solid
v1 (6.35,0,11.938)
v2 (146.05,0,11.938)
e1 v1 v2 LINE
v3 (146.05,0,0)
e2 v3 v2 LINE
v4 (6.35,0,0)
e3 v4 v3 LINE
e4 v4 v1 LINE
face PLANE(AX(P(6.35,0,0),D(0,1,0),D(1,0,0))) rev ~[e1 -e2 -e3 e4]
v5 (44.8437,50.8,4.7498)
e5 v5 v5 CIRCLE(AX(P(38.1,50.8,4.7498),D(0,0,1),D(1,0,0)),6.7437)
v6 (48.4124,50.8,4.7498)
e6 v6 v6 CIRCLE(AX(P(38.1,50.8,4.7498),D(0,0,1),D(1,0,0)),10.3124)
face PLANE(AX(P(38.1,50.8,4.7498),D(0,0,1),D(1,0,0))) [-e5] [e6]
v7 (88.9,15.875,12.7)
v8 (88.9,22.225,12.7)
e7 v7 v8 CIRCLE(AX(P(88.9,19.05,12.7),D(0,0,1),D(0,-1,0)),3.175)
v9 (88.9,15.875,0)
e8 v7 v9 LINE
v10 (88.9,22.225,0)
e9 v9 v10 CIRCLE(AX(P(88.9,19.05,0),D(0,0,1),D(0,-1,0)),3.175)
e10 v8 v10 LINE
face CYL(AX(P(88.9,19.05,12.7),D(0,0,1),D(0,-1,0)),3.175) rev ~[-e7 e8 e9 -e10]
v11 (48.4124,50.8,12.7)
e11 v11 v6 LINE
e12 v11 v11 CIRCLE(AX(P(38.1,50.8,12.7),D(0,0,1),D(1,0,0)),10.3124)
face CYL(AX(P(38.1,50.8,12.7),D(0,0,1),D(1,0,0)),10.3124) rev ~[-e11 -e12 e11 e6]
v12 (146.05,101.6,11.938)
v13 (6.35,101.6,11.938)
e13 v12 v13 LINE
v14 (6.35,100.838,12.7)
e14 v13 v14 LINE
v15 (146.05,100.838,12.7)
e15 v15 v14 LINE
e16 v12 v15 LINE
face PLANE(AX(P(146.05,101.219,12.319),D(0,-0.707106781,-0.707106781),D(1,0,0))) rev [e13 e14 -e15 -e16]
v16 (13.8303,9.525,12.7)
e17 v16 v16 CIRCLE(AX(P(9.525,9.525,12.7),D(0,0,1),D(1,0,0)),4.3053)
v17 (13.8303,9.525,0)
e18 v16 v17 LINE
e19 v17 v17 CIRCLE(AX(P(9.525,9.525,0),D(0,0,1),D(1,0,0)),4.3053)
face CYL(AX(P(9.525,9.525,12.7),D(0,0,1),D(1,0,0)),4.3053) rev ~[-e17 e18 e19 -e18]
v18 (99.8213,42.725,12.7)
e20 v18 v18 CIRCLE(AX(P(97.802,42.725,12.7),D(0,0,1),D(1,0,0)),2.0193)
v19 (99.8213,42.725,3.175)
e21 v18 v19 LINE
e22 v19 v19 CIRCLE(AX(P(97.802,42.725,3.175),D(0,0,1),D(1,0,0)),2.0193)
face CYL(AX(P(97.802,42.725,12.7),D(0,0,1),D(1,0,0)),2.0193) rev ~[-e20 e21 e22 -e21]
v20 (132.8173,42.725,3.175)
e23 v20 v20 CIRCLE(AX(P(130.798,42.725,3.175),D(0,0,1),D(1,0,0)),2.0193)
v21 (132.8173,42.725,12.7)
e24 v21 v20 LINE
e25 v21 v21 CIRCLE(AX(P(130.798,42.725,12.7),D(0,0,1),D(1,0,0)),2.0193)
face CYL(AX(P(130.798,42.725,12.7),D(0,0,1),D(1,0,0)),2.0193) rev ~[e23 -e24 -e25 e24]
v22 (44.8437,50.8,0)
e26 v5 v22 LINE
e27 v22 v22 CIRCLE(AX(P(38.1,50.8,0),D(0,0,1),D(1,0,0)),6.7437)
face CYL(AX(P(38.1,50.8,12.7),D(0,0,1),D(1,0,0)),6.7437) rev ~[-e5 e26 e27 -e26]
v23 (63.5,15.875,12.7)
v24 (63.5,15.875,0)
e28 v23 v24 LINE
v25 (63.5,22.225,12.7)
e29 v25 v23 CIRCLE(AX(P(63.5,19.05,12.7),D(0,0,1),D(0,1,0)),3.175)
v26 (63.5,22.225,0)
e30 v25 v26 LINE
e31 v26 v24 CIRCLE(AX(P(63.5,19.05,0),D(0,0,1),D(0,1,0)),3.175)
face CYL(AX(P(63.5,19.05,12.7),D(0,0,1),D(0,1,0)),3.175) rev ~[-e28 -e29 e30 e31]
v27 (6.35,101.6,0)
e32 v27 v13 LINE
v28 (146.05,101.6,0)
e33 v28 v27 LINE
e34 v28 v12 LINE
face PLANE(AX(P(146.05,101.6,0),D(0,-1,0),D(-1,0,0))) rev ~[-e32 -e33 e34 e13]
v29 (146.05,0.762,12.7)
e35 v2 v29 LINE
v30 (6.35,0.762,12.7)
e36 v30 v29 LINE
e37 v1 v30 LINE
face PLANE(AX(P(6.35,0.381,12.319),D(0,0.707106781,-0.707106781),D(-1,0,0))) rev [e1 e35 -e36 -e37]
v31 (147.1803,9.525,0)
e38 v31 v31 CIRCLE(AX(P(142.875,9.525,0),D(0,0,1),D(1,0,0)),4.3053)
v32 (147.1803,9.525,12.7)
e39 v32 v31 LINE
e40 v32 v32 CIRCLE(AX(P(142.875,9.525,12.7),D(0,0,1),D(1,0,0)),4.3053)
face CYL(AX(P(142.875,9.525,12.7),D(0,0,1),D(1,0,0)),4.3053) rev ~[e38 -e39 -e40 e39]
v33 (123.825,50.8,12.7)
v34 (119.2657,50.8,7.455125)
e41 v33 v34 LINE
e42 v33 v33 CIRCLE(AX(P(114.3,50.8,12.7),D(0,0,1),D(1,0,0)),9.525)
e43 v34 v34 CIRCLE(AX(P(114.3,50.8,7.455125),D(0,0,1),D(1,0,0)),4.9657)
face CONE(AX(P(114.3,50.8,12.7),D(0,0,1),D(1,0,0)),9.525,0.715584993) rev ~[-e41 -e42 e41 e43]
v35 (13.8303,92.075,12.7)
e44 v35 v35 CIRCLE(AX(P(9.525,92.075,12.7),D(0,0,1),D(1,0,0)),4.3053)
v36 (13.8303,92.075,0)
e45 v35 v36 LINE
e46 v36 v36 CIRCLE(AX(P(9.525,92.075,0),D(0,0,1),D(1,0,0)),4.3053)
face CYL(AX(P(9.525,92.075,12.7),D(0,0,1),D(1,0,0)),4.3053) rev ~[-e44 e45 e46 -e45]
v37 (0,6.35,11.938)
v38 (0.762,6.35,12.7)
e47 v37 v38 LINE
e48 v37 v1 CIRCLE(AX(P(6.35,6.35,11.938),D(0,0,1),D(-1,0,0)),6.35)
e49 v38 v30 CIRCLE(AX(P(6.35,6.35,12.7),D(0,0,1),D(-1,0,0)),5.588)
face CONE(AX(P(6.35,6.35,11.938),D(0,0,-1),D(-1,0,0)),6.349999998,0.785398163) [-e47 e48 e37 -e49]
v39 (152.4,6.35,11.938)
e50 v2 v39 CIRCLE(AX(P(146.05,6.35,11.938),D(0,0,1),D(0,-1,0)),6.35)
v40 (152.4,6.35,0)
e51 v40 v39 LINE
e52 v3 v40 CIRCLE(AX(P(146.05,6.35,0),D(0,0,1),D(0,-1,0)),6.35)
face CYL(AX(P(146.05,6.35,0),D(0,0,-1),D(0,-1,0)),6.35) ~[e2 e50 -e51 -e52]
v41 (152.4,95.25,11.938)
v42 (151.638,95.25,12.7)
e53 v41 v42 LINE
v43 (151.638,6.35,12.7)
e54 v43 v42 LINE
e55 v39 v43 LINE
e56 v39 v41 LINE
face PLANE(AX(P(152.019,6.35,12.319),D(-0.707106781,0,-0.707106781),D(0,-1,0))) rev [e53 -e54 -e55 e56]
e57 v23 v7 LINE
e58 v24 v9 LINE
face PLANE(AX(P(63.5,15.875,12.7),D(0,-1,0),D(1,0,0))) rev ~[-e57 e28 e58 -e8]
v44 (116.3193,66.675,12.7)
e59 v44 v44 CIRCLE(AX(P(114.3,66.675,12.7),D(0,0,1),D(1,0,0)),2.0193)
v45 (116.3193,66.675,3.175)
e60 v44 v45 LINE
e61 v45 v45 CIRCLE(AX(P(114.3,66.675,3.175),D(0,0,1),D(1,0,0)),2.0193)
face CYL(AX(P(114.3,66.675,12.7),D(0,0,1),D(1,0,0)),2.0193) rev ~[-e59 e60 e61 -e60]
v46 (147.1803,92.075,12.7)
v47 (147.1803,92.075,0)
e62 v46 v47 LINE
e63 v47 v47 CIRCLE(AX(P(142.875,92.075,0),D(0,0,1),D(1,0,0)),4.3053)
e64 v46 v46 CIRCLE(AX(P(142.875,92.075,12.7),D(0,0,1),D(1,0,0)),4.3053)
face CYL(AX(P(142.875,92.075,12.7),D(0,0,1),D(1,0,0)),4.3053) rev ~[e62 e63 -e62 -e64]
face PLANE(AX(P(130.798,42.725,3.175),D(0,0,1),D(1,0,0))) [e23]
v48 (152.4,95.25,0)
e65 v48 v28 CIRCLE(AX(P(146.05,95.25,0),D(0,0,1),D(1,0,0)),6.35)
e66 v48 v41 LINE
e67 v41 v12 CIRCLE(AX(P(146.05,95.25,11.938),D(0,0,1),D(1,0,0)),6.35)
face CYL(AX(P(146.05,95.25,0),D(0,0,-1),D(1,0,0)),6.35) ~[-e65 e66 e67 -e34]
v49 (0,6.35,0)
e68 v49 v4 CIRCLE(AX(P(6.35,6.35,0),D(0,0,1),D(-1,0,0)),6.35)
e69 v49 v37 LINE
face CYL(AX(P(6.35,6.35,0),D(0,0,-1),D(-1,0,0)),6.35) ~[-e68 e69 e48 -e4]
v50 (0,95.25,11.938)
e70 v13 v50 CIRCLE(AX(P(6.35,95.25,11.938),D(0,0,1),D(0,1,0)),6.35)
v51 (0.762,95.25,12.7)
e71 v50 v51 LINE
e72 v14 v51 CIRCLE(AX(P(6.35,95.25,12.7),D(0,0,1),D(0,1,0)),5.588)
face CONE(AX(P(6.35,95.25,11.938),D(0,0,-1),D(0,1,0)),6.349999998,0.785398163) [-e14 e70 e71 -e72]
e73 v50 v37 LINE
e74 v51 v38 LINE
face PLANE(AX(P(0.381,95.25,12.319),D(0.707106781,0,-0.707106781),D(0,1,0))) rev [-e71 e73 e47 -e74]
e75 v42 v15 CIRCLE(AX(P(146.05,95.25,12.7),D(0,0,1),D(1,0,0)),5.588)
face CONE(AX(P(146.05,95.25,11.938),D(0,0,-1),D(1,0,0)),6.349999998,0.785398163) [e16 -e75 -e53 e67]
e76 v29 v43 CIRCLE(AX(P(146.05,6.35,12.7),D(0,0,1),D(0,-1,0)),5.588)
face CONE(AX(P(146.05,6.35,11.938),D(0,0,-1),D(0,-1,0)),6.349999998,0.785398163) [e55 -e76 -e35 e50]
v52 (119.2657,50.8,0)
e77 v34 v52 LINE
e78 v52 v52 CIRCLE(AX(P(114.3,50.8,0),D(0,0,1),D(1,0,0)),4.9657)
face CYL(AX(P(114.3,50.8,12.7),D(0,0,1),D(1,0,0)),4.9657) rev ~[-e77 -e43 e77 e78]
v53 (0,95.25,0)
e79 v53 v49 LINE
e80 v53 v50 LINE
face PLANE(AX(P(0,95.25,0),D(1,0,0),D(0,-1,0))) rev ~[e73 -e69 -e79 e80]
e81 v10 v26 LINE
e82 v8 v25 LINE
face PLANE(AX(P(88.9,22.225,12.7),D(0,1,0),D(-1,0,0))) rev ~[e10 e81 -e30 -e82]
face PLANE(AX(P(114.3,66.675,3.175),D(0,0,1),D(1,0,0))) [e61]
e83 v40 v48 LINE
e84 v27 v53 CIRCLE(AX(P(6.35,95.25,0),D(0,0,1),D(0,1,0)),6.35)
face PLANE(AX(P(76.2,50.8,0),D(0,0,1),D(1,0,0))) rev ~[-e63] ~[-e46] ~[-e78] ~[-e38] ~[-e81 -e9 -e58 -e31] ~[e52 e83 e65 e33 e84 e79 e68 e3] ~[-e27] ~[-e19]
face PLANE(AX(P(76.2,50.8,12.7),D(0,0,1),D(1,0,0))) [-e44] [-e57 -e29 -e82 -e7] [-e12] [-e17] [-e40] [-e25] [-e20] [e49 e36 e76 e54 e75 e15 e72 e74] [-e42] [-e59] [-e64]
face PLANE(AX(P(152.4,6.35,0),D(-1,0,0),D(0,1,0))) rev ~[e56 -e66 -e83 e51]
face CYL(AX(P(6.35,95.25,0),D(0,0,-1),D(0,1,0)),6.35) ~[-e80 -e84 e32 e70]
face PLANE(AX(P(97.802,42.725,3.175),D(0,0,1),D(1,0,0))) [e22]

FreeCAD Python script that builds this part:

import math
import FreeCAD as App
import Part
import Sketcher
Q = App.Units.Quantity


def edges_at(feature, points):
    """Names of the edges that pass closest to the given points."""
    edges = feature.Shape.Edges
    near = lambda p: min(range(len(edges)), key=lambda i: edges[i].distToShape(Part.Vertex(*p))[0])
    return sorted({f"Edge{near(p) + 1}" for p in points})


def faces_at(feature, points):
    """Names of the faces that lie closest to the given points."""
    faces = feature.Shape.Faces
    near = lambda p: min(range(len(faces)), key=lambda i: faces[i].distToShape(Part.Vertex(*p))[0])
    return sorted({f"Face{near(p) + 1}" for p in points})

doc = App.newDocument("Part")
params = doc.addObject("Spreadsheet::Sheet", "Params")
for row, (alias, value) in enumerate([
    ("sketch1_radius", "0.25 in"),
    ("sketch1_width", "5.5 in"),
    ("sketch1_height", "3.5 in"),
    ("pad1_length", "0.5 in"),
    ("sketch2_diameter", "0.339 in"),
    ("sketch3_width", "1 in"),
    ("sketch3_radius", "0.125 in"),
    ("sketch4_diameter", "0.812 in"),
    ("pocket3_length", "0.313 in"),
    ("sketch5_diameter", "0.531 in"),
    ("sketch6_diameter", "0.75 in"),
    ("pad2_length", "5.244875 mm"),
    ("draft_angle", "41 deg"),
    ("sketch7_diameter", "0.391 in"),
    ("sketch8_diameter", "0.159 in"),
    ("pocket6_length", "0.375 in"),
    ("chamfer_size", "0.03 in"),
], start=1):
    params.set(f"A{row}", alias)
    params.set(f"B{row}", "=" + value)
    params.setAlias(f"B{row}", alias)

body = doc.addObject("PartDesign::Body", "Body")

sketch1 = body.newObject("Sketcher::SketchObject", "Sketch")
sketch1.AttachmentSupport = (doc.getObject("XY_Plane"), [""])
sketch1.MapMode = "FlatFace"
sketch1.addGeometry([
    Part.LineSegment(App.Vector(6.35, 0, 0), App.Vector(146.05, 0, 0)),
    Part.ArcOfCircle(Part.Circle(App.Vector(146.05, 6.35, 0), App.Vector(0, 0, 1), 6.35), math.radians(-90), math.radians(0)),
    Part.LineSegment(App.Vector(152.4, 6.35, 0), App.Vector(152.4, 95.25, 0)),
    Part.ArcOfCircle(Part.Circle(App.Vector(146.05, 95.25, 0), App.Vector(0, 0, 1), 6.35), math.radians(0), math.radians(90)),
    Part.LineSegment(App.Vector(146.05, 101.6, 0), App.Vector(6.35, 101.6, 0)),
    Part.ArcOfCircle(Part.Circle(App.Vector(6.35, 95.25, 0), App.Vector(0, 0, 1), 6.35), math.radians(90), math.radians(180)),
    Part.LineSegment(App.Vector(0, 95.25, 0), App.Vector(0, 6.35, 0)),
    Part.ArcOfCircle(Part.Circle(App.Vector(6.35, 6.35, 0), App.Vector(0, 0, 1), 6.35), math.radians(180), math.radians(270)),
], False)
sketch1.addConstraint([
    Sketcher.Constraint("Tangent", 0, 2, 1, 1),
    Sketcher.Constraint("Tangent", 1, 2, 2, 1),
    Sketcher.Constraint("Tangent", 2, 2, 3, 1),
    Sketcher.Constraint("Tangent", 3, 2, 4, 1),
    Sketcher.Constraint("Tangent", 4, 2, 5, 1),
    Sketcher.Constraint("Tangent", 5, 2, 6, 1),
    Sketcher.Constraint("Tangent", 6, 2, 7, 1),
    Sketcher.Constraint("Tangent", 7, 2, 0, 1),
    Sketcher.Constraint("Horizontal", 0),
    Sketcher.Constraint("Vertical", 2),
    Sketcher.Constraint("Horizontal", 4),
    Sketcher.Constraint("Vertical", 6),
    Sketcher.Constraint("Equal", 1, 3),
    Sketcher.Constraint("Equal", 3, 5),
    Sketcher.Constraint("Equal", 5, 7),
    Sketcher.Constraint("PointOnObject", 0, 2, -1),
    Sketcher.Constraint("PointOnObject", 5, 2, -2),
    Sketcher.Constraint("Radius", 1, Q("0.25 in")),
    Sketcher.Constraint("DistanceX", 0, 1, 0, 2, Q("5.5 in")),
    Sketcher.Constraint("DistanceY", 2, 1, 2, 2, Q("3.5 in")),
])
sketch1.setExpression("Constraints[17]", "Params.sketch1_radius")
sketch1.setExpression("Constraints[18]", "Params.sketch1_width")
sketch1.setExpression("Constraints[19]", "Params.sketch1_height")
pad1 = body.newObject("PartDesign::Pad", "Pad")
pad1.Profile = sketch1
pad1.setExpression("Length", "Params.pad1_length")

sketch2 = body.newObject("Sketcher::SketchObject", "Sketch001")
sketch2.AttachmentSupport = (doc.getObject("XY_Plane"), [""])
sketch2.MapMode = "FlatFace"
sketch2.AttachmentOffset = App.Placement(App.Vector(0, 0, 0.5 * 25.4), App.Rotation())
sketch2.addGeometry([
    Part.Circle(App.Vector(9.525, 9.525, 0), App.Vector(0, 0, 1), 4.3053),
    Part.Circle(App.Vector(142.875, 9.525, 0), App.Vector(0, 0, 1), 4.3053),
    Part.Circle(App.Vector(9.525, 92.075, 0), App.Vector(0, 0, 1), 4.3053),
    Part.Circle(App.Vector(142.875, 92.075, 0), App.Vector(0, 0, 1), 4.3053),
], False)
sketch2.addConstraint([
    Sketcher.Constraint("Equal", 0, 1),
    Sketcher.Constraint("Equal", 1, 2),
    Sketcher.Constraint("Equal", 2, 3),
    Sketcher.Constraint("Horizontal", 0, 3, 1, 3),
    Sketcher.Constraint("Horizontal", 2, 3, 3, 3),
    Sketcher.Constraint("Vertical", 0, 3, 2, 3),
    Sketcher.Constraint("Vertical", 1, 3, 3, 3),
    Sketcher.Constraint("Diameter", 0, Q("0.339 in")),
    Sketcher.Constraint("DistanceX", 0, 3, 1, 3, Q("5.25 in")),
    Sketcher.Constraint("DistanceY", 0, 3, 2, 3, Q("3.25 in")),
    Sketcher.Constraint("DistanceX", -1, 1, 0, 3, Q("0.375 in")),
    Sketcher.Constraint("DistanceY", -1, 1, 0, 3, Q("0.375 in")),
])
sketch2.setExpression("Constraints[7]", "Params.sketch2_diameter")
pocket1 = body.newObject("PartDesign::Pocket", "Pocket")
pocket1.Profile = sketch2
pocket1.Type = "ThroughAll"

sketch3 = body.newObject("Sketcher::SketchObject", "Sketch002")
sketch3.AttachmentSupport = (doc.getObject("XY_Plane"), [""])
sketch3.MapMode = "FlatFace"
sketch3.AttachmentOffset = App.Placement(App.Vector(0, 0, 0.5 * 25.4), App.Rotation())
sketch3.addGeometry([
    Part.LineSegment(App.Vector(63.5, 15.875, 0), App.Vector(88.9, 15.875, 0)),
    Part.ArcOfCircle(Part.Circle(App.Vector(88.9, 19.05, 0), App.Vector(0, 0, 1), 3.175), math.radians(-90), math.radians(90)),
    Part.LineSegment(App.Vector(88.9, 22.225, 0), App.Vector(63.5, 22.225, 0)),
    Part.ArcOfCircle(Part.Circle(App.Vector(63.5, 19.05, 0), App.Vector(0, 0, 1), 3.175), math.radians(90), math.radians(270)),
], False)
sketch3.addConstraint([
    Sketcher.Constraint("Tangent", 0, 2, 1, 1),
    Sketcher.Constraint("Tangent", 1, 2, 2, 1),
    Sketcher.Constraint("Tangent", 2, 2, 3, 1),
    Sketcher.Constraint("Tangent", 3, 2, 0, 1),
    Sketcher.Constraint("Horizontal", 0),
    Sketcher.Constraint("Horizontal", 2),
    Sketcher.Constraint("DistanceX", 0, 1, 0, 2, Q("1 in")),
    Sketcher.Constraint("Radius", 1, Q("0.125 in")),
    Sketcher.Constraint("DistanceX", -1, 1, 1, 3, Q("3.5 in")),
    Sketcher.Constraint("DistanceY", -1, 1, 1, 3, Q("0.75 in")),
])
sketch3.setExpression("Constraints[6]", "Params.sketch3_width")
sketch3.setExpression("Constraints[7]", "Params.sketch3_radius")
pocket2 = body.newObject("PartDesign::Pocket", "Pocket001")
pocket2.Profile = sketch3
pocket2.Type = "ThroughAll"

sketch4 = body.newObject("Sketcher::SketchObject", "Sketch003")
sketch4.AttachmentSupport = (doc.getObject("XY_Plane"), [""])
sketch4.MapMode = "FlatFace"
sketch4.AttachmentOffset = App.Placement(App.Vector(0, 0, 0.5 * 25.4), App.Rotation())
sketch4.addGeometry(Part.Circle(App.Vector(38.1, 50.8, 0), App.Vector(0, 0, 1), 10.3124), False)
sketch4.addConstraint([
    Sketcher.Constraint("Diameter", 0, Q("0.812 in")),
    Sketcher.Constraint("DistanceY", -1, 1, 0, 3, Q("2 in")),
    Sketcher.Constraint("DistanceX", -1, 1, 0, 3, Q("1.5 in")),
])
sketch4.setExpression("Constraints[0]", "Params.sketch4_diameter")
pocket3 = body.newObject("PartDesign::Pocket", "Pocket002")
pocket3.Profile = sketch4
pocket3.setExpression("Length", "Params.pocket3_length")

sketch5 = body.newObject("Sketcher::SketchObject", "Sketch004")
sketch5.AttachmentSupport = (doc.getObject("XY_Plane"), [""])
sketch5.MapMode = "FlatFace"
sketch5.AttachmentOffset = App.Placement(App.Vector(0, 0, 0.5 * 25.4), App.Rotation())
sketch5.addGeometry(Part.Circle(App.Vector(38.1, 50.8, 0), App.Vector(0, 0, 1), 6.7437), False)
sketch5.addConstraint([
    Sketcher.Constraint("Diameter", 0, Q("0.531 in")),
    Sketcher.Constraint("DistanceY", -1, 1, 0, 3, Q("2 in")),
    Sketcher.Constraint("DistanceX", -1, 1, 0, 3, Q("1.5 in")),
])
sketch5.setExpression("Constraints[0]", "Params.sketch5_diameter")
pocket4 = body.newObject("PartDesign::Pocket", "Pocket003")
pocket4.Profile = sketch5
pocket4.Type = "ThroughAll"
body2 = doc.addObject("PartDesign::Body", "Body001")

sketch6 = body2.newObject("Sketcher::SketchObject", "Sketch005")
sketch6.AttachmentSupport = (doc.getObject("XY_Plane001"), [""])
sketch6.MapMode = "FlatFace"
sketch6.AttachmentOffset = App.Placement(App.Vector(0, 0, 0.5 * 25.4), App.Rotation())
sketch6.addGeometry(Part.Circle(App.Vector(114.3, 50.8, 0), App.Vector(0, 0, 1), 9.525), False)
sketch6.addConstraint([
    Sketcher.Constraint("Diameter", 0, Q("0.75 in")),
    Sketcher.Constraint("DistanceY", -1, 1, 0, 3, Q("2 in")),
    Sketcher.Constraint("DistanceX", -1, 1, 0, 3, Q("4.5 in")),
])
sketch6.setExpression("Constraints[0]", "Params.sketch6_diameter")
pad2 = body2.newObject("PartDesign::Pad", "Pad001")
pad2.Profile = sketch6
pad2.setExpression("Length", "Params.pad2_length")
pad2.Reversed = True
doc.recompute()

datumplane = body2.newObject("PartDesign::Plane", "DatumPlane")
datumplane.AttachmentSupport = (doc.getObject("XY_Plane001"), [""])
datumplane.MapMode = "FlatFace"
datumplane.AttachmentOffset = App.Placement(App.Vector(0, 0, 0.5 * 25.4), App.Rotation())
draft = body2.newObject("PartDesign::Draft", "Draft")
draft.Base = (pad2, faces_at(pad2, [(104.775, 50.8, 10.078)]))
draft.NeutralPlane = (datumplane, [""])
draft.setExpression("Angle", "Params.draft_angle")
draft.Reversed = True
doc.recompute()

boolean = body.newObject("PartDesign::Boolean", "Boolean")
boolean.Type = "Cut"
boolean.addObjects([body2])

sketch7 = body.newObject("Sketcher::SketchObject", "Sketch006")
sketch7.AttachmentSupport = (doc.getObject("XY_Plane"), [""])
sketch7.MapMode = "FlatFace"
sketch7.AttachmentOffset = App.Placement(App.Vector(0, 0, 0.5 * 25.4), App.Rotation())
sketch7.addGeometry(Part.Circle(App.Vector(114.3, 50.8, 0), App.Vector(0, 0, 1), 4.9657), False)
sketch7.addConstraint([
    Sketcher.Constraint("Diameter", 0, Q("0.391 in")),
    Sketcher.Constraint("DistanceY", -1, 1, 0, 3, Q("2 in")),
    Sketcher.Constraint("DistanceX", -1, 1, 0, 3, Q("4.5 in")),
])
sketch7.setExpression("Constraints[0]", "Params.sketch7_diameter")
pocket5 = body.newObject("PartDesign::Pocket", "Pocket004")
pocket5.Profile = sketch7
pocket5.Type = "ThroughAll"

sketch8 = body.newObject("Sketcher::SketchObject", "Sketch007")
sketch8.AttachmentSupport = (doc.getObject("XY_Plane"), [""])
sketch8.MapMode = "FlatFace"
sketch8.AttachmentOffset = App.Placement(App.Vector(0, 0, 0.5 * 25.4), App.Rotation())
sketch8.addGeometry([
    Part.Circle(App.Vector(114.3, 66.675, 0), App.Vector(0, 0, 1), 2.0193),
    Part.Circle(App.Vector(97.802, 42.725, 0), App.Vector(0, 0, 1), 2.0193),
    Part.Circle(App.Vector(130.798, 42.725, 0), App.Vector(0, 0, 1), 2.0193),
], False)
sketch8.addConstraint([
    Sketcher.Constraint("Equal", 0, 1),
    Sketcher.Constraint("Equal", 1, 2),
    Sketcher.Constraint("Horizontal", 1, 3, 2, 3),
    Sketcher.Constraint("Diameter", 0, Q("0.159 in")),
    Sketcher.Constraint("DistanceX", -1, 1, 0, 3, Q("4.5 in")),
    Sketcher.Constraint("DistanceY", -1, 1, 0, 3, Q("2.625 in")),
    Sketcher.Constraint("DistanceX", -1, 1, 1, 3, Q("97.802 mm")),
    Sketcher.Constraint("DistanceY", -1, 1, 1, 3, Q("42.725 mm")),
    Sketcher.Constraint("DistanceX", -1, 1, 2, 3, Q("130.798 mm")),
])
sketch8.setExpression("Constraints[3]", "Params.sketch8_diameter")
pocket6 = body.newObject("PartDesign::Pocket", "Pocket005")
pocket6.Profile = sketch8
pocket6.setExpression("Length", "Params.pocket6_length")
doc.recompute()

chamfer = body.newObject("PartDesign::Chamfer", "Chamfer")
chamfer.Base = (pocket6, edges_at(pocket6, [
    (150.54, 1.86, 12.7),
    (152.4, 50.8, 12.7),
    (150.54, 99.74, 12.7),
    (76.2, 101.6, 12.7),
    (1.86, 99.74, 12.7),
    (0, 50.8, 12.7),
    (1.86, 1.86, 12.7),
    (76.2, 0, 12.7),
]))
chamfer.setExpression("Size", "Params.chamfer_size")

doc.recompute()
